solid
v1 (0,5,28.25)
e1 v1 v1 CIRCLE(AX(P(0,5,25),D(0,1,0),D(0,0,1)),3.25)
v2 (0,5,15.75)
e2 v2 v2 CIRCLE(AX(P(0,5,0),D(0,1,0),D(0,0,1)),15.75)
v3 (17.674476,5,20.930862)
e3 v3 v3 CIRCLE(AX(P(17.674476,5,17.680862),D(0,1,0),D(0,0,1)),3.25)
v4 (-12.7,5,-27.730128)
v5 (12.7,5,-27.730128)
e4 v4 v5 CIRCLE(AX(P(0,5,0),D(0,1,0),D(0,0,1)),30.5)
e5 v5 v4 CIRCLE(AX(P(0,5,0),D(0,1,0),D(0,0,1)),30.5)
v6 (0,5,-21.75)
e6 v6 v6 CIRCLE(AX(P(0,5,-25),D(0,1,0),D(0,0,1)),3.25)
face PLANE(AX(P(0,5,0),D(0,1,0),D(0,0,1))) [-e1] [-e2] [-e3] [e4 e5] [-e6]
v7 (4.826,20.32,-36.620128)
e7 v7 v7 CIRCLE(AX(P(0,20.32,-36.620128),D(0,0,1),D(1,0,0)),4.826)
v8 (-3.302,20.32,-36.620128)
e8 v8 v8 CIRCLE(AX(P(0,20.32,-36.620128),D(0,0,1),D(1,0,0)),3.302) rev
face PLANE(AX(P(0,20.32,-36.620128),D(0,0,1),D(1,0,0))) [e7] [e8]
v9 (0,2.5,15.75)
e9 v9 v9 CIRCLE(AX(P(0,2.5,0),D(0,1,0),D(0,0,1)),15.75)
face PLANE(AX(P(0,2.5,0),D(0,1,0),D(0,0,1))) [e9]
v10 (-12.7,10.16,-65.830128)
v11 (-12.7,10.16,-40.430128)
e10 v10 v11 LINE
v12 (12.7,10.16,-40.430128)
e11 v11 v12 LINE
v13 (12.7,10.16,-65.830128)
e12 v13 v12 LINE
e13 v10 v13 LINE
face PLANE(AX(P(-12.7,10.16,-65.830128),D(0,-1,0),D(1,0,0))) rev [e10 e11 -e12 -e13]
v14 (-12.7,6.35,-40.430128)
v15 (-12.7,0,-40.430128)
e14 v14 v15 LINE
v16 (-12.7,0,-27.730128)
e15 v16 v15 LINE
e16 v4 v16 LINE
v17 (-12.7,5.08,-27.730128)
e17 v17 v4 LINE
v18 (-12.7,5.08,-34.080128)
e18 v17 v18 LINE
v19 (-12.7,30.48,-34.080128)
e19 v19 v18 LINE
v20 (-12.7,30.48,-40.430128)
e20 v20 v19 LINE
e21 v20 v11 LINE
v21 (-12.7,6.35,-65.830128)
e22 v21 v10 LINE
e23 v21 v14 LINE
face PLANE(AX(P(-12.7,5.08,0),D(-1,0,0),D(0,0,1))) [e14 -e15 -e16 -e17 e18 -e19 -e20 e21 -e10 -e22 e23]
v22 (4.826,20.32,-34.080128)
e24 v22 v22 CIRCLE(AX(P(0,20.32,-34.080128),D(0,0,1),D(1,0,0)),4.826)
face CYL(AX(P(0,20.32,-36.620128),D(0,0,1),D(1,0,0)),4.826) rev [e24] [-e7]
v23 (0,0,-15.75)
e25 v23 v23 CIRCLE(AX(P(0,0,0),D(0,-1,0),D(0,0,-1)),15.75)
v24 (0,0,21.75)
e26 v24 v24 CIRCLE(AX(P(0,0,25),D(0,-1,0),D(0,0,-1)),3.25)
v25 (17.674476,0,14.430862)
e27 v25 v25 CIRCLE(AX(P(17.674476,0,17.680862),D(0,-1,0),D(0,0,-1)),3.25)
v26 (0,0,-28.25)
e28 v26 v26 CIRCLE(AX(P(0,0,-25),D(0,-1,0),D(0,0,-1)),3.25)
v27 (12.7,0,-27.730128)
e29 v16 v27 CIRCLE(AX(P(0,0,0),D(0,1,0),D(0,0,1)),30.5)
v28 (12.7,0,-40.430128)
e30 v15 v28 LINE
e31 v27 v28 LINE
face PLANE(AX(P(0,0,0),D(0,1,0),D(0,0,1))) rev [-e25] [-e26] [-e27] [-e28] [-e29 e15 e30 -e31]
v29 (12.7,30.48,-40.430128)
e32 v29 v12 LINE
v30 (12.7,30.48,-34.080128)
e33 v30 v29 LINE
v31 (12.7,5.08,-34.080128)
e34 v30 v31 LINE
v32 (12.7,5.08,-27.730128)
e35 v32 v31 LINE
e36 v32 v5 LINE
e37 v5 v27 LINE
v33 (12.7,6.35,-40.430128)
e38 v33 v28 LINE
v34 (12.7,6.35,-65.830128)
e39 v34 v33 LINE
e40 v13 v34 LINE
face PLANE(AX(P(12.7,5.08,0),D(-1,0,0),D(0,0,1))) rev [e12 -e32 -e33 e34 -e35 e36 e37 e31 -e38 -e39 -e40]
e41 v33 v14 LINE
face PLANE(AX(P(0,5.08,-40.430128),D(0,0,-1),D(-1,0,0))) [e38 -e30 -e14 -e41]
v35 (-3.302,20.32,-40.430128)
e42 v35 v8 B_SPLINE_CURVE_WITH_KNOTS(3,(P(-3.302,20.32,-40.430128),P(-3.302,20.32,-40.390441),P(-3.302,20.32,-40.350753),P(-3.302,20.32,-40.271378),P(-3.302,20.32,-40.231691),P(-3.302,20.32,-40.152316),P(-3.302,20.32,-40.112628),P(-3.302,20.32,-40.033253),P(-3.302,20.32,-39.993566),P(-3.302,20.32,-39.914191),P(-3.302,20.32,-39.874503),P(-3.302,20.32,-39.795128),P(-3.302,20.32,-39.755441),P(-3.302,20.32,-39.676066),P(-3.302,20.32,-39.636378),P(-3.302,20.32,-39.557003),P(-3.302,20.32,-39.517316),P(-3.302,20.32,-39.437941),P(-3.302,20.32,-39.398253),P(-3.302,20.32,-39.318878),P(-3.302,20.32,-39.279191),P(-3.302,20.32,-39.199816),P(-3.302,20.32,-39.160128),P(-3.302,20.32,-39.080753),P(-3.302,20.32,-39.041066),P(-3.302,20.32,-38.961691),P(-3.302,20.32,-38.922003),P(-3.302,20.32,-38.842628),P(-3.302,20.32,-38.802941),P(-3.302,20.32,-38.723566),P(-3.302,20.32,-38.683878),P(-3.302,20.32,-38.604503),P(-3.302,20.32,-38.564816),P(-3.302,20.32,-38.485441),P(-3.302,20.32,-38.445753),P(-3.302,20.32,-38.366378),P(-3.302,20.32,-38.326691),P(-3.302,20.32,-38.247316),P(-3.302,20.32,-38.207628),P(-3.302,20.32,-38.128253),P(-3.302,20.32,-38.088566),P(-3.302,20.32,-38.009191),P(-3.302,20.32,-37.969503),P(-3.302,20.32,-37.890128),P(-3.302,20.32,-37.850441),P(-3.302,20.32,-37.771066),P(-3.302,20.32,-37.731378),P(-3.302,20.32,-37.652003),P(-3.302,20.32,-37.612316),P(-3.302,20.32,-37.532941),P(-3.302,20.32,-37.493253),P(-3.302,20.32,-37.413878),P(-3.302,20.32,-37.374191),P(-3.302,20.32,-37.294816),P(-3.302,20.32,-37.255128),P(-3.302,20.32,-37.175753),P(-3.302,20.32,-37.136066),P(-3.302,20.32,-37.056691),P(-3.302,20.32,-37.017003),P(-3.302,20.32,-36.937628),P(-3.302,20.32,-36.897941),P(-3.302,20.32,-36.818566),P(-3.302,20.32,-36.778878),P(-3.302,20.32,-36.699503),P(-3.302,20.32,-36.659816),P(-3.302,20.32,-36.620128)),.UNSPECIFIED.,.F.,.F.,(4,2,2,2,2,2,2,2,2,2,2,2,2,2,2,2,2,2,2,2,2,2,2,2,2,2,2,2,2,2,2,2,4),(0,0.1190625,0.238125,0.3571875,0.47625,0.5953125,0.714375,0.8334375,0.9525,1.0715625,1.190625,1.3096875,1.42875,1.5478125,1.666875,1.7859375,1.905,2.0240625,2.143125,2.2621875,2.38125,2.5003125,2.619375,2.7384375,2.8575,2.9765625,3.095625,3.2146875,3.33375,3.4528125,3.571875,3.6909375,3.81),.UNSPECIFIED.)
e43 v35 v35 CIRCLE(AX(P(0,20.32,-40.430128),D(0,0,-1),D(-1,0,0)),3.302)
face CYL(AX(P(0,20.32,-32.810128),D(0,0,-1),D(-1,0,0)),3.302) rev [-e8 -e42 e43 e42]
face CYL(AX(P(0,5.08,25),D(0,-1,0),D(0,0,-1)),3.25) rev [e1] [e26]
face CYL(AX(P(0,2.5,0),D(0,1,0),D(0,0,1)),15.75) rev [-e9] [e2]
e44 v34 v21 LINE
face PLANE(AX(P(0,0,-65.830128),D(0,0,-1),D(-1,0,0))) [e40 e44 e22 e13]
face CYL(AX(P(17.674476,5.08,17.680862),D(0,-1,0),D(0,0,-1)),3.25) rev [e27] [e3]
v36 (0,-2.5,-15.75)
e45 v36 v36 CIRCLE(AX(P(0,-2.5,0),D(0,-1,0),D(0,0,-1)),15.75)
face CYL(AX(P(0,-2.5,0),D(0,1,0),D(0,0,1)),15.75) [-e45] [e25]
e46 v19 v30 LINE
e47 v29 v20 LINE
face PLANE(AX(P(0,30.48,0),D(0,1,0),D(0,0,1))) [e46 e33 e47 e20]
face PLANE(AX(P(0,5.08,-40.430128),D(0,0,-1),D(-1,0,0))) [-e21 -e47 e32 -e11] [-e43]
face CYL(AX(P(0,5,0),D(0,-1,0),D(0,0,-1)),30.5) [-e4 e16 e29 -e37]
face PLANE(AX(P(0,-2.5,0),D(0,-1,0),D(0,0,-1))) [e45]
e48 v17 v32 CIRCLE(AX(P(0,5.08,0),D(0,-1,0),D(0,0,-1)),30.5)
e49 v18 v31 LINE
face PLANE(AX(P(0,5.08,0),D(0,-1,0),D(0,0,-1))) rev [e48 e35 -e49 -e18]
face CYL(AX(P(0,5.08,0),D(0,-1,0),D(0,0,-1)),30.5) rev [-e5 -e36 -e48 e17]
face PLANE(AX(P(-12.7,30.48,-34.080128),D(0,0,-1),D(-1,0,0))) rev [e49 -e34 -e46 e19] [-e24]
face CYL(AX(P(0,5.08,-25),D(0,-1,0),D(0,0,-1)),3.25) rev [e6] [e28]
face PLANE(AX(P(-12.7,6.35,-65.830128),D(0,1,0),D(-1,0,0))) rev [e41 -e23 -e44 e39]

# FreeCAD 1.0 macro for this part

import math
import FreeCAD as App
import Part
import Sketcher
from FreeCAD import Vector
Q = App.Units.Quantity

doc = App.newDocument("Part")
body = doc.addObject("PartDesign::Body", "Body")

# Sketch on XZ plane
sketch1 = body.newObject("Sketcher::SketchObject", "Sketch")
sketch1.AttachmentSupport = (doc.getObject("XZ_Plane"), [""])
sketch1.MapMode = "FlatFace"
sketch1.addGeometry(Part.Circle(Vector(0, 0, 0), Vector(0, 0, 1), 30), False)
sketch1.addConstraint(Sketcher.Constraint("Coincident", 0, 3, -1, 1))
sketch1.addConstraint(Sketcher.Constraint("Diameter", 0, Q("61 mm")))
pad1 = body.newObject("PartDesign::Pad", "Pad")
pad1.Profile = sketch1
pad1.Length = 5
pad1.Reversed = True

# Sketch on XZ plane
sketch2 = body.newObject("Sketcher::SketchObject", "Sketch001")
sketch2.AttachmentSupport = (doc.getObject("XZ_Plane"), [""])
sketch2.MapMode = "FlatFace"
sketch2.AttachmentOffset = App.Placement(Vector(0, 0, -5), App.Rotation())
sketch2.addGeometry(Part.Circle(Vector(0, 0, 0), Vector(0, 0, 1), 16), False)
sketch2.addConstraint(Sketcher.Constraint("Coincident", 0, 3, -1, 1))
sketch2.addConstraint(Sketcher.Constraint("Diameter", 0, Q("31.5 mm")))
pocket1 = body.newObject("PartDesign::Pocket", "Pocket")
pocket1.Profile = sketch2
pocket1.Length = 2.5
pocket1.Reversed = True

# Sketch on XZ plane
sketch3 = body.newObject("Sketcher::SketchObject", "Sketch002")
sketch3.AttachmentSupport = (doc.getObject("XZ_Plane"), [""])
sketch3.MapMode = "FlatFace"
sketch3.addGeometry(Part.Circle(Vector(0, 0, 0), Vector(0, 0, 1), 16), False)
sketch3.addConstraint(Sketcher.Constraint("Coincident", 0, 3, -1, 1))
sketch3.addConstraint(Sketcher.Constraint("Diameter", 0, Q("31.5 mm")))
pad2 = body.newObject("PartDesign::Pad", "Pad001")
pad2.Profile = sketch3
pad2.Length = 2.5

# Sketch on XZ plane
sketch4 = body.newObject("Sketcher::SketchObject", "Sketch003")
sketch4.AttachmentSupport = (doc.getObject("XZ_Plane"), [""])
sketch4.MapMode = "FlatFace"
sketch4.addGeometry(Part.Circle(Vector(0, -25, 0), Vector(0, 0, 1), 3.2), False)
sketch4.addConstraint(Sketcher.Constraint("PointOnObject", 0, 3, -2))
sketch4.addConstraint(Sketcher.Constraint("Diameter", 0, Q("6.5 mm")))
sketch4.addConstraint(Sketcher.Constraint("DistanceY", 0, 3, -1, 1, Q("25 mm")))
pocket2 = body.newObject("PartDesign::Pocket", "Pocket001")
pocket2.Profile = sketch4
pocket2.Length = Q("0.2 in")

# Sketch on XZ plane
sketch5 = body.newObject("Sketcher::SketchObject", "Sketch004")
sketch5.AttachmentSupport = (doc.getObject("XZ_Plane"), [""])
sketch5.MapMode = "FlatFace"
sketch5.addGeometry(Part.Circle(Vector(0, 25, 0), Vector(0, 0, 1), 3.2), False)
sketch5.addConstraint(Sketcher.Constraint("PointOnObject", 0, 3, -2))
sketch5.addConstraint(Sketcher.Constraint("Diameter", 0, Q("6.5 mm")))
sketch5.addConstraint(Sketcher.Constraint("DistanceY", -1, 1, 0, 3, Q("25 mm")))
pocket3 = body.newObject("PartDesign::Pocket", "Pocket002")
pocket3.Profile = sketch5
pocket3.Length = Q("0.2 in")

# Sketch on XZ plane
sketch6 = body.newObject("Sketcher::SketchObject", "Sketch005")
sketch6.AttachmentSupport = (doc.getObject("XZ_Plane"), [""])
sketch6.MapMode = "FlatFace"
sketch6.addGeometry(Part.Circle(Vector(17.7, 17.7, 0), Vector(0, 0, 1), 3.2), False)
sketch6.addConstraint(Sketcher.Constraint("Diameter", 0, Q("6.5 mm")))
sketch6.addConstraint(Sketcher.Constraint("DistanceX", -1, 1, 0, 3, Q("17.674476 mm")))
sketch6.addConstraint(Sketcher.Constraint("DistanceY", -1, 1, 0, 3, Q("17.680862 mm")))
pocket4 = body.newObject("PartDesign::Pocket", "Pocket003")
pocket4.Profile = sketch6
pocket4.Length = Q("0.2 in")

# Sketch on XZ plane
sketch7 = body.newObject("Sketcher::SketchObject", "Sketch006")
sketch7.AttachmentSupport = (doc.getObject("XZ_Plane"), [""])
sketch7.MapMode = "FlatFace"
sketch7.addGeometry(Part.ArcOfCircle(Part.Circle(Vector(0, 0, 0), Vector(0, 0, 1), 31), math.radians(-90), math.radians(-65)), False)
sketch7.addGeometry(Part.ArcOfCircle(Part.Circle(Vector(0, 0, 0), Vector(0, 0, 1), 31), math.radians(-115), math.radians(-90)), False)
sketch7.addGeometry(Part.LineSegment(Vector(-13, -28, 0), Vector(-13, -40, 0)), False)
sketch7.addGeometry(Part.LineSegment(Vector(-13, -40, 0), Vector(13, -40, 0)), False)
sketch7.addGeometry(Part.LineSegment(Vector(13, -40, 0), Vector(13, -28, 0)), False)
sketch7.addConstraint(Sketcher.Constraint("Tangent", 0, 1, 1, 2))
sketch7.addConstraint(Sketcher.Constraint("Coincident", 1, 1, 2, 1))
sketch7.addConstraint(Sketcher.Constraint("Coincident", 2, 2, 3, 1))
sketch7.addConstraint(Sketcher.Constraint("Coincident", 3, 2, 4, 1))
sketch7.addConstraint(Sketcher.Constraint("Coincident", 4, 2, 0, 2))
sketch7.addConstraint(Sketcher.Constraint("Vertical", 2))
sketch7.addConstraint(Sketcher.Constraint("Horizontal", 3))
sketch7.addConstraint(Sketcher.Constraint("Vertical", 4))
sketch7.addConstraint(Sketcher.Constraint("Coincident", 0, 3, -1, 1))
sketch7.addConstraint(Sketcher.Constraint("Equal", 0, 1))
sketch7.addConstraint(Sketcher.Constraint("PointOnObject", 0, 1, -2))
sketch7.addConstraint(Sketcher.Constraint("Horizontal", 1, 1, 4, 2))
sketch7.addConstraint(Sketcher.Constraint("DistanceX", 3, 1, 3, 2, Q("1 in")))
sketch7.addConstraint(Sketcher.Constraint("DistanceY", 2, 2, 2, 1, Q("0.5 in")))
sketch7.addConstraint(Sketcher.Constraint("Radius", 0, Q("30.5 mm")))
pad3 = body.newObject("PartDesign::Pad", "Pad002")
pad3.Profile = sketch7
pad3.Length = Q("0.2 in")
pad3.Reversed = True

# Sketch on XZ plane
sketch8 = body.newObject("Sketcher::SketchObject", "Sketch007")
sketch8.AttachmentSupport = (doc.getObject("XZ_Plane"), [""])
sketch8.MapMode = "FlatFace"
sketch8.AttachmentOffset = App.Placement(Vector(0, 0, -0.2 * 25.4), App.Rotation())
sketch8.addGeometry(Part.LineSegment(Vector(-13, -40, 0), Vector(-13, -34, 0)), False)
sketch8.addGeometry(Part.LineSegment(Vector(-13, -34, 0), Vector(13, -34, 0)), False)
sketch8.addGeometry(Part.LineSegment(Vector(13, -34, 0), Vector(13, -40, 0)), False)
sketch8.addGeometry(Part.LineSegment(Vector(13, -40, 0), Vector(-13, -40, 0)), False)
sketch8.addConstraint(Sketcher.Constraint("Coincident", 0, 2, 1, 1))
sketch8.addConstraint(Sketcher.Constraint("Coincident", 1, 2, 2, 1))
sketch8.addConstraint(Sketcher.Constraint("Coincident", 2, 2, 3, 1))
sketch8.addConstraint(Sketcher.Constraint("Coincident", 3, 2, 0, 1))
sketch8.addConstraint(Sketcher.Constraint("Vertical", 0))
sketch8.addConstraint(Sketcher.Constraint("Horizontal", 1))
sketch8.addConstraint(Sketcher.Constraint("Vertical", 2))
sketch8.addConstraint(Sketcher.Constraint("Horizontal", 3))
sketch8.addConstraint(Sketcher.Constraint("DistanceX", 1, 1, 1, 2, Q("1 in")))
sketch8.addConstraint(Sketcher.Constraint("DistanceY", 0, 1, 0, 2, Q("0.25 in")))
sketch8.addConstraint(Sketcher.Constraint("DistanceX", 0, 2, -1, 1, Q("0.5 in")))
sketch8.addConstraint(Sketcher.Constraint("DistanceY", 0, 2, -1, 1, Q("34.080128 mm")))
pad4 = body.newObject("PartDesign::Pad", "Pad003")
pad4.Profile = sketch8
pad4.Length = Q("1 in")
pad4.Reversed = True

# Sketch on XY plane
sketch9 = body.newObject("Sketcher::SketchObject", "Sketch008")
sketch9.AttachmentSupport = (doc.getObject("XY_Plane"), [""])
sketch9.MapMode = "FlatFace"
sketch9.AttachmentOffset = App.Placement(Vector(0, 0, -40.430128), App.Rotation())
sketch9.addGeometry(Part.LineSegment(Vector(12.7, 10.2, 0), Vector(12.7, 6.3, 0)), False)
sketch9.addGeometry(Part.LineSegment(Vector(12.7, 6.3, 0), Vector(-12.7, 6.3, 0)), False)
sketch9.addGeometry(Part.LineSegment(Vector(-12.7, 6.3, 0), Vector(-12.7, 10.2, 0)), False)
sketch9.addGeometry(Part.LineSegment(Vector(-12.7, 10.2, 0), Vector(12.7, 10.2, 0)), False)
sketch9.addConstraint(Sketcher.Constraint("Coincident", 0, 2, 1, 1))
sketch9.addConstraint(Sketcher.Constraint("Coincident", 1, 2, 2, 1))
sketch9.addConstraint(Sketcher.Constraint("Coincident", 2, 2, 3, 1))
sketch9.addConstraint(Sketcher.Constraint("Coincident", 3, 2, 0, 1))
sketch9.addConstraint(Sketcher.Constraint("Vertical", 0))
sketch9.addConstraint(Sketcher.Constraint("Horizontal", 1))
sketch9.addConstraint(Sketcher.Constraint("Vertical", 2))
sketch9.addConstraint(Sketcher.Constraint("Horizontal", 3))
sketch9.addConstraint(Sketcher.Constraint("DistanceX", 1, 2, 1, 1, Q("1 in")))
sketch9.addConstraint(Sketcher.Constraint("DistanceY", 0, 2, 0, 1, Q("0.15 in")))
sketch9.addConstraint(Sketcher.Constraint("DistanceX", -1, 1, 0, 2, Q("0.5 in")))
sketch9.addConstraint(Sketcher.Constraint("DistanceY", -1, 1, 2, 2, Q("0.4 in")))
pad5 = body.newObject("PartDesign::Pad", "Pad004")
pad5.Profile = sketch9
pad5.Length = Q("1 in")
pad5.Reversed = True

# Sketch on XY plane
sketch10 = body.newObject("Sketcher::SketchObject", "Sketch009")
sketch10.AttachmentSupport = (doc.getObject("XY_Plane"), [""])
sketch10.MapMode = "FlatFace"
sketch10.AttachmentOffset = App.Placement(Vector(0, 0, -40.430128), App.Rotation())
sketch10.addGeometry(Part.Circle(Vector(0, 20.3, 0), Vector(0, 0, 1), 3.3), False)
sketch10.addConstraint(Sketcher.Constraint("PointOnObject", 0, 3, -2))
sketch10.addConstraint(Sketcher.Constraint("Diameter", 0, Q("0.26 in")))
sketch10.addConstraint(Sketcher.Constraint("DistanceY", -1, 1, 0, 3, Q("0.8 in")))
pocket5 = body.newObject("PartDesign::Pocket", "Pocket004")
pocket5.Profile = sketch10
pocket5.Length = Q("0.3 in")
pocket5.Reversed = True

# Sketch on XY plane
sketch11 = body.newObject("Sketcher::SketchObject", "Sketch010")
sketch11.AttachmentSupport = (doc.getObject("XY_Plane"), [""])
sketch11.MapMode = "FlatFace"
sketch11.AttachmentOffset = App.Placement(Vector(0, 0, -34.080128), App.Rotation())
sketch11.addGeometry(Part.Circle(Vector(0, 20.3, 0), Vector(0, 0, 1), 4.8), False)
sketch11.addConstraint(Sketcher.Constraint("PointOnObject", 0, 3, -2))
sketch11.addConstraint(Sketcher.Constraint("Diameter", 0, Q("0.38 in")))
sketch11.addConstraint(Sketcher.Constraint("DistanceY", -1, 1, 0, 3, Q("0.8 in")))
pocket6 = body.newObject("PartDesign::Pocket", "Pocket005")
pocket6.Profile = sketch11
pocket6.Length = Q("0.1 in")

doc.recompute()
